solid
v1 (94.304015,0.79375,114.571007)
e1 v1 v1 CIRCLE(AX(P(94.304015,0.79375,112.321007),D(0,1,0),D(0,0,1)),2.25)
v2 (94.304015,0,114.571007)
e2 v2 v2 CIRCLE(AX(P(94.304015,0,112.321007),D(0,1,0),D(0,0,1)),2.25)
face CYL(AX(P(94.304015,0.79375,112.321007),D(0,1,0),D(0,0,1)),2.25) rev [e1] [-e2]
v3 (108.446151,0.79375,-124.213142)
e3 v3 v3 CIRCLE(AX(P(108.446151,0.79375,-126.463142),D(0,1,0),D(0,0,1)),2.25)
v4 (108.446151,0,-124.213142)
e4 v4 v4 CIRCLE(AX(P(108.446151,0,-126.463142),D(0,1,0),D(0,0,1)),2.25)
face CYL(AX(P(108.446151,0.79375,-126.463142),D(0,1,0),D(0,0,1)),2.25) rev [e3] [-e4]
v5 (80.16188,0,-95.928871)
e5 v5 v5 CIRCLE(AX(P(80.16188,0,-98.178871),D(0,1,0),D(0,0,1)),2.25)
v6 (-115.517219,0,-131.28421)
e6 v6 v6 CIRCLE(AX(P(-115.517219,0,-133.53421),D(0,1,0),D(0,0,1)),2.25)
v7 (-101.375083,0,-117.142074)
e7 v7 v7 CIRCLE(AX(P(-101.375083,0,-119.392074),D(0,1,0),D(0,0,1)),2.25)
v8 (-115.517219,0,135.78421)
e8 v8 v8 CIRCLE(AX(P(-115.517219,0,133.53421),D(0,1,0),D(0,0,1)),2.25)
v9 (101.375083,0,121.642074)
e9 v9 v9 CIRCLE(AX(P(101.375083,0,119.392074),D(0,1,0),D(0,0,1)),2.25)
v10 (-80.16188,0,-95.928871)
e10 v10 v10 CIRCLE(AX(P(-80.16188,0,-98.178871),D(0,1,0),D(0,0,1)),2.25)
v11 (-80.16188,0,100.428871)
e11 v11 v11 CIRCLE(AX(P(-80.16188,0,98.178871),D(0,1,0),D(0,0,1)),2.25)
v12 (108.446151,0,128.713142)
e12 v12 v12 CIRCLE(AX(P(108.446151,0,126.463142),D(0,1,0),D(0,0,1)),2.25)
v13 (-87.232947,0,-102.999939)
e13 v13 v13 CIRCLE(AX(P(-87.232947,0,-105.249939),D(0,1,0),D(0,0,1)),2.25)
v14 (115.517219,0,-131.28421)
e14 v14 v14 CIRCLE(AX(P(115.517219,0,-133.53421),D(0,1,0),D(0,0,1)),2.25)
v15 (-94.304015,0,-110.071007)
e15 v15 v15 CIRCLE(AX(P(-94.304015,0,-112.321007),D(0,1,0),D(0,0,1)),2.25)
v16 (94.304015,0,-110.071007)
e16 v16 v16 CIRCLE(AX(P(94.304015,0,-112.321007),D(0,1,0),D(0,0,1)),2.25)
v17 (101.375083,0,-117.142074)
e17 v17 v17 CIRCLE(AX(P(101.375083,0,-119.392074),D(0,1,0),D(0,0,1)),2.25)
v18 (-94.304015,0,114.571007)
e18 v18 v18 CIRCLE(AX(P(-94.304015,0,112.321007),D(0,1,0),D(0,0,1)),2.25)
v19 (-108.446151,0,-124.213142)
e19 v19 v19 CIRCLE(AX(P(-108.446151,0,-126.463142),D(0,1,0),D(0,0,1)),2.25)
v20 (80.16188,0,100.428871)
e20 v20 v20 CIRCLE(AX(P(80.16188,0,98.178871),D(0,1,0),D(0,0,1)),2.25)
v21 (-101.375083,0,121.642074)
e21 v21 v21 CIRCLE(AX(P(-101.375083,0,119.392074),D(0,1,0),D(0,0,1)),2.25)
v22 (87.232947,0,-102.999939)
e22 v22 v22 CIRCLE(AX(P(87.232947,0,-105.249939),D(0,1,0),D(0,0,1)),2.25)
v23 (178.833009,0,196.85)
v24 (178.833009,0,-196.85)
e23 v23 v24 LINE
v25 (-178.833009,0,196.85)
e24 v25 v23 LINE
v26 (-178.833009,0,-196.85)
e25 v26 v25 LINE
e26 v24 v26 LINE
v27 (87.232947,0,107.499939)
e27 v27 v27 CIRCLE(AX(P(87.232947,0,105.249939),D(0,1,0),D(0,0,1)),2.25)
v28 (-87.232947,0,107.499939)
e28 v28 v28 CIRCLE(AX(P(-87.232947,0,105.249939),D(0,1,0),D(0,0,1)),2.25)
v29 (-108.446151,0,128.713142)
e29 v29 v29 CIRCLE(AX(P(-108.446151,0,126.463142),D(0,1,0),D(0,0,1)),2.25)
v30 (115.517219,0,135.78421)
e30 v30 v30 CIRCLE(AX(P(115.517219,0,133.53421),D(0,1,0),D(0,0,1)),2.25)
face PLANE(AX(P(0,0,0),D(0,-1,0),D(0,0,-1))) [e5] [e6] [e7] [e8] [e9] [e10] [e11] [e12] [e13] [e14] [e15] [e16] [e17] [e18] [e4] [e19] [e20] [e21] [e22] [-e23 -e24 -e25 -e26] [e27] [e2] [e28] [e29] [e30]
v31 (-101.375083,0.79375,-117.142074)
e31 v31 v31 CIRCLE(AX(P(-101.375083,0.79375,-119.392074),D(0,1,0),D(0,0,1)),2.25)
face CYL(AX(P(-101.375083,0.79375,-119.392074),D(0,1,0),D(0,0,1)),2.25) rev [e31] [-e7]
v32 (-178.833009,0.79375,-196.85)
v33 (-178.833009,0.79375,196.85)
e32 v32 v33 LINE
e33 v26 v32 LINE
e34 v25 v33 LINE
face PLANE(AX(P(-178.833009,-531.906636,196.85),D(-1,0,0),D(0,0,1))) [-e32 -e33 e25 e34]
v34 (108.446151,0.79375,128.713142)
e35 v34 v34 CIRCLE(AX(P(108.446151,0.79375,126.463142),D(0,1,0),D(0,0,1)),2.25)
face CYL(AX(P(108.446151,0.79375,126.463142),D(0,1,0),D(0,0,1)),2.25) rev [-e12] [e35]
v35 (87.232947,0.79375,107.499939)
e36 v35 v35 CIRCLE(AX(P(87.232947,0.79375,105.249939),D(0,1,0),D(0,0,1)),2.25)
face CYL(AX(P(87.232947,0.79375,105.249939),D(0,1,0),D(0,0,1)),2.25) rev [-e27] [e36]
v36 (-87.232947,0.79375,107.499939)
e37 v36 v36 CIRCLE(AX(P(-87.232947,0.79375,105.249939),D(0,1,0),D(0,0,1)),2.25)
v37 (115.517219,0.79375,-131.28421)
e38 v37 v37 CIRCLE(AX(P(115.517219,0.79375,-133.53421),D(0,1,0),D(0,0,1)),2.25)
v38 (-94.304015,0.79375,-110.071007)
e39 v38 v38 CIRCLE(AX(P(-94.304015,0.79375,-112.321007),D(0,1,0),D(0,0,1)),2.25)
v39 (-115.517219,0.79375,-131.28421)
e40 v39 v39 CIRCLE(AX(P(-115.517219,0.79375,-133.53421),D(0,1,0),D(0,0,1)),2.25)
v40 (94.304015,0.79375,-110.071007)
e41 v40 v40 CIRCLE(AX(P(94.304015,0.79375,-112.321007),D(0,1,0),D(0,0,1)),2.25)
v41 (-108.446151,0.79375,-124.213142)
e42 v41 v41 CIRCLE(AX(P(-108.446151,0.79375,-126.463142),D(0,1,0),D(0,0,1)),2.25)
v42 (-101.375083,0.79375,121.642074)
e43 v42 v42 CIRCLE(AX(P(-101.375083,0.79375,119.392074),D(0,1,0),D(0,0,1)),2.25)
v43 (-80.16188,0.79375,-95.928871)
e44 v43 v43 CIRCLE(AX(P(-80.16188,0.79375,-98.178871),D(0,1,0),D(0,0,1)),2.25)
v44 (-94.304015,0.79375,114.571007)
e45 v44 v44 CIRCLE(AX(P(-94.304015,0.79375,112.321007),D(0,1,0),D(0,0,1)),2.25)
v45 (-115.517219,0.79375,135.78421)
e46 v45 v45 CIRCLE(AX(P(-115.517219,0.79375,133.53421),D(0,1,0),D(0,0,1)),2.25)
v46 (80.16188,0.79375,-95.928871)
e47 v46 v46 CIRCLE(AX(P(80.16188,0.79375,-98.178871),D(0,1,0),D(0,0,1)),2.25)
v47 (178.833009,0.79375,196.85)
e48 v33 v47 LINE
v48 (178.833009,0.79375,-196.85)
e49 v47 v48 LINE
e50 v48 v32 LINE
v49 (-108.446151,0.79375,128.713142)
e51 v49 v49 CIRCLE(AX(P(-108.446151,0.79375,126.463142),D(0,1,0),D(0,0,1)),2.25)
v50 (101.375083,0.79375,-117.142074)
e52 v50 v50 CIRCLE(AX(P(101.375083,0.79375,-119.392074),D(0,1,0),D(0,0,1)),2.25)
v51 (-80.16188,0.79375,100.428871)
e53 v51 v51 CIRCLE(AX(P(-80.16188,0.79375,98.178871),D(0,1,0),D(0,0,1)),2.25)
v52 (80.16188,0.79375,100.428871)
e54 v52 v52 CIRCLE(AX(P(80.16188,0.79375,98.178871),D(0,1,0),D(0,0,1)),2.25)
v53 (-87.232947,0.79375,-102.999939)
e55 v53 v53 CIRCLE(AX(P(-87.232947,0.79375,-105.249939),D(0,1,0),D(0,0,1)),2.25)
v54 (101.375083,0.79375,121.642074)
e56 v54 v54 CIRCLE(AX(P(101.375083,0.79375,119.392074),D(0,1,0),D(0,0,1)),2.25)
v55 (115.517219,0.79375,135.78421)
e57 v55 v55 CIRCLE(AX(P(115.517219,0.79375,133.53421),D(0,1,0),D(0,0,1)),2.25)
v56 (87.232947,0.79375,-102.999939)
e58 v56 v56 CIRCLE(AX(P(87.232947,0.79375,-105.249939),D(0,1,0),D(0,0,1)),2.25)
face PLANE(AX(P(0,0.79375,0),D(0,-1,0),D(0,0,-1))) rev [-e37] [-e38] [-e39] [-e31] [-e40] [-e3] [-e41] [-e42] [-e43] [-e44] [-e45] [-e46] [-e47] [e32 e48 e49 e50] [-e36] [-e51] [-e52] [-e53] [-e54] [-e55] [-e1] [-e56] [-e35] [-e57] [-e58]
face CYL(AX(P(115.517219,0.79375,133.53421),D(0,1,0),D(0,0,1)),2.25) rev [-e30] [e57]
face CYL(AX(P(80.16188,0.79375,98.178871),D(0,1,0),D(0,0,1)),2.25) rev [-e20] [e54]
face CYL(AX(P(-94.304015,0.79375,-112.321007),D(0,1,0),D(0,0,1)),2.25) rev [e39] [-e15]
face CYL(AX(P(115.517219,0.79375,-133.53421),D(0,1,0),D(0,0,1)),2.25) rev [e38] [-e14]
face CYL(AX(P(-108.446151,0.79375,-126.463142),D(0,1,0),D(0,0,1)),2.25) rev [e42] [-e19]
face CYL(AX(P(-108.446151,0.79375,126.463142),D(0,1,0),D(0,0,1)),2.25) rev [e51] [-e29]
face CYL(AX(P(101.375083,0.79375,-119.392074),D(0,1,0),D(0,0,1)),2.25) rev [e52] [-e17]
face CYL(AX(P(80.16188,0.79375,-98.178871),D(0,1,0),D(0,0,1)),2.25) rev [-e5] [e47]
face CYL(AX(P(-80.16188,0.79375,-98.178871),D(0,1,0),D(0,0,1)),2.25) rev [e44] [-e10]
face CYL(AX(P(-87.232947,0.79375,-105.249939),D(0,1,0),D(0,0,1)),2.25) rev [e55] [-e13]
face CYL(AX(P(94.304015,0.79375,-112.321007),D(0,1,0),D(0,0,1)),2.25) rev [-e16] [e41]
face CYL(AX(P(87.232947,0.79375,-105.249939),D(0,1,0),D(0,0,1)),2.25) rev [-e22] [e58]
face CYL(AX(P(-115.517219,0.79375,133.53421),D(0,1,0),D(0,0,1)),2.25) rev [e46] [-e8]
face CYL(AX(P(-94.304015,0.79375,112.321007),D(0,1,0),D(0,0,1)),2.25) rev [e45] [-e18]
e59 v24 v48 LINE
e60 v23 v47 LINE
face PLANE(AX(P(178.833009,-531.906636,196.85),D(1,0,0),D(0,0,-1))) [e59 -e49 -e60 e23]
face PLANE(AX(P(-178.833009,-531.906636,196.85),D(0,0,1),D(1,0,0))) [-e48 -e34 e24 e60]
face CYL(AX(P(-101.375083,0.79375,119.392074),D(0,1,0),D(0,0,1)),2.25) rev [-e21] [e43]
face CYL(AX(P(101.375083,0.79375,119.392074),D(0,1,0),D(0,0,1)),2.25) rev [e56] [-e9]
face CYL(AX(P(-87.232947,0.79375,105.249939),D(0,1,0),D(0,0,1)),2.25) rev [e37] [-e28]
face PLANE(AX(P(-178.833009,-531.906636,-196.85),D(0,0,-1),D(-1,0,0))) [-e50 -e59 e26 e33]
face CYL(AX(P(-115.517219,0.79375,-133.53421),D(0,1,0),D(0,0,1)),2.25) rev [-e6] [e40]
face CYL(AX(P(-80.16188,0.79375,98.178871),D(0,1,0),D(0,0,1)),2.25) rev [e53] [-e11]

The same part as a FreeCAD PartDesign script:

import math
import FreeCAD as App
import Part
import Sketcher

V = App.Vector
Q = App.Units.Quantity


def edges_at(feature, points):
    """Names of the edges that pass closest to the given points."""
    edges = feature.Shape.Edges
    near = lambda p: min(range(len(edges)), key=lambda i: edges[i].distToShape(Part.Vertex(*p))[0])
    return sorted({f"Edge{near(p) + 1}" for p in points})

doc = App.newDocument("Part")
body = doc.addObject("PartDesign::Body", "Body")

sketch1 = body.newObject("Sketcher::SketchObject", "Sketch")
sketch1.AttachmentSupport = (doc.getObject("XZ_Plane"), [""])
sketch1.MapMode = "FlatFace"
sketch1.addGeometry([
    Part.LineSegment(V(57, -93, 0), V(-57, -93, 0)),
    Part.LineSegment(V(-57, -93, 0), V(-110, -146, 0)),
    Part.LineSegment(V(-110, -146, 0), V(-128, -128, 0)),
    Part.LineSegment(V(-128, -128, 0), V(-75, -75, 0)),
    Part.LineSegment(V(-75, -75, 0), V(-75, 75, 0)),
    Part.LineSegment(V(-75, 75, 0), V(-128, 128, 0)),
    Part.LineSegment(V(-128, 128, 0), V(-110, 146, 0)),
    Part.LineSegment(V(-110, 146, 0), V(-57, 93, 0)),
    Part.LineSegment(V(-57, 93, 0), V(57, 93, 0)),
    Part.LineSegment(V(57, 93, 0), V(110, 146, 0)),
    Part.LineSegment(V(110, 146, 0), V(128, 128, 0)),
    Part.LineSegment(V(128, 128, 0), V(75, 75, 0)),
    Part.LineSegment(V(75, 75, 0), V(75, -75, 0)),
    Part.LineSegment(V(75, -75, 0), V(128, -128, 0)),
    Part.LineSegment(V(128, -128, 0), V(110, -146, 0)),
    Part.LineSegment(V(110, -146, 0), V(57, -93, 0)),
], False)
sketch1.addConstraint([
    Sketcher.Constraint("Coincident", 0, 2, 1, 1),
    Sketcher.Constraint("Coincident", 1, 2, 2, 1),
    Sketcher.Constraint("Coincident", 2, 2, 3, 1),
    Sketcher.Constraint("Coincident", 3, 2, 4, 1),
    Sketcher.Constraint("Coincident", 4, 2, 5, 1),
    Sketcher.Constraint("Coincident", 5, 2, 6, 1),
    Sketcher.Constraint("Coincident", 6, 2, 7, 1),
    Sketcher.Constraint("Coincident", 7, 2, 8, 1),
    Sketcher.Constraint("Coincident", 8, 2, 9, 1),
    Sketcher.Constraint("Coincident", 9, 2, 10, 1),
    Sketcher.Constraint("Coincident", 10, 2, 11, 1),
    Sketcher.Constraint("Coincident", 11, 2, 12, 1),
    Sketcher.Constraint("Coincident", 12, 2, 13, 1),
    Sketcher.Constraint("Coincident", 13, 2, 14, 1),
    Sketcher.Constraint("Coincident", 14, 2, 15, 1),
    Sketcher.Constraint("Coincident", 15, 2, 0, 1),
    Sketcher.Constraint("Horizontal", 0),
    Sketcher.Constraint("Vertical", 4),
    Sketcher.Constraint("Horizontal", 8),
    Sketcher.Constraint("Vertical", 12),
    Sketcher.Constraint("Symmetric", 0, 2, 8, 2, -1, 1),
    Sketcher.Constraint("Symmetric", 1, 2, 9, 2, -1, 1),
    Sketcher.Constraint("Symmetric", 2, 2, 10, 2, -1, 1),
    Sketcher.Constraint("Symmetric", 3, 2, 11, 2, -1, 1),
    Sketcher.Constraint("Symmetric", 5, 2, 13, 2, -1, 1),
    Sketcher.Constraint("Symmetric", 6, 2, 14, 2, -1, 1),
    Sketcher.Constraint("Symmetric", 6, 2, 9, 2, -2),
    Sketcher.Constraint("Symmetric", 5, 2, 10, 2, -2),
    Sketcher.Constraint("Perpendicular", 1, 2),
    Sketcher.Constraint("Perpendicular", 2, 3),
    Sketcher.Constraint("Perpendicular", 3, 5),
    Sketcher.Constraint("Perpendicular", 5, 6),
    Sketcher.Constraint("Perpendicular", 6, 7),
    Sketcher.Constraint("Perpendicular", 11, 13),
    Sketcher.Constraint("Perpendicular", 14, 15),
    Sketcher.Constraint("Equal", 1, 3),
    Sketcher.Constraint("Distance", 1, Q("75 mm")),
    Sketcher.Constraint("DistanceX", 3, 2, -1, 1, Q("75 mm")),
    Sketcher.Constraint("Distance", 2, Q("25.4 mm")),
    Sketcher.Constraint("DistanceY", 1, 2, -1, 1, Q("146.05 mm")),
])
pad1 = body.newObject("PartDesign::Pad", "Pad")
pad1.Profile = sketch1
pad1.Length = 0.79375
pad1.Reversed = True
doc.recompute()

fillet = body.newObject("PartDesign::Fillet", "Fillet")
fillet.Base = (pad1, edges_at(pad1, [
    (75, 0.397, -75.056),
    (75, 0.397, 75.056),
    (57.039, 0.397, 93.017),
    (-57.039, 0.397, 93.017),
    (-75, 0.397, 75.056),
    (-75, 0.397, -75.056),
    (-57.039, 0.397, -93.017),
    (57.039, 0.397, -93.017),
]))
fillet.Radius = 50

sketch2 = body.newObject("Sketcher::SketchObject", "Sketch001")
sketch2.AttachmentSupport = (doc.getObject("XZ_Plane"), [""])
sketch2.MapMode = "FlatFace"
sketch2.AttachmentOffset = App.Placement(V(0, 0, -0.79375), App.Rotation())
sketch2.addGeometry(Part.Circle(V(115.5, -133.5, 0), V(0, 0, 1), 2.2), False)
sketch2.addConstraint([
    Sketcher.Constraint("Diameter", 0, Q("4.5 mm")),
    Sketcher.Constraint("DistanceX", -1, 1, 0, 3, Q("115.517219 mm")),
    Sketcher.Constraint("DistanceY", 0, 3, -1, 1, Q("133.53421 mm")),
])
doc.recompute()
hole = body.newObject("PartDesign::Hole", "Hole")
hole.Profile = sketch2
hole.ThreadType = "None"
hole.Diameter = 4.5
hole.DepthType = "ThroughAll"
hole.Reversed = True
doc.recompute()

datumline = body.newObject("PartDesign::Line", "DatumLine")
datumline.Placement = App.Placement(V(0, 0, 0), App.Rotation(V(0, 0, 1), V(-0.707106781, 0, 0.707106781)))
linearpattern = body.newObject("PartDesign::LinearPattern", "LinearPattern")
linearpattern.Originals = [hole]
linearpattern.Direction = (datumline, [""])
linearpattern.Mode = "offset"
linearpattern.Offset = 10
linearpattern.Occurrences = 6
body.Tip = linearpattern
doc.recompute()

mirrored = body.newObject("PartDesign::Mirrored", "Mirrored")
mirrored.Originals = [hole]
mirrored.MirrorPlane = (doc.getObject("XY_Plane"), [""])
body.Tip = mirrored

sketch3 = body.newObject("Sketcher::SketchObject", "Sketch002")
sketch3.AttachmentSupport = (doc.getObject("XZ_Plane"), [""])
sketch3.MapMode = "FlatFace"
sketch3.AttachmentOffset = App.Placement(V(0, 0, -0.79375), App.Rotation())
sketch3.addGeometry(Part.Circle(V(108.4, 126.5, 0), V(0, 0, 1), 2.2), False)
sketch3.addConstraint([
    Sketcher.Constraint("Diameter", 0, Q("4.5 mm")),
    Sketcher.Constraint("DistanceX", -1, 1, 0, 3, Q("108.446151 mm")),
    Sketcher.Constraint("DistanceY", -1, 1, 0, 3, Q("126.463142 mm")),
])
doc.recompute()
hole2 = body.newObject("PartDesign::Hole", "Hole001")
hole2.Profile = sketch3
hole2.ThreadType = "None"
hole2.Diameter = 4.5
hole2.DepthType = "ThroughAll"
hole2.Reversed = True

sketch4 = body.newObject("Sketcher::SketchObject", "Sketch003")
sketch4.AttachmentSupport = (doc.getObject("XZ_Plane"), [""])
sketch4.MapMode = "FlatFace"
sketch4.AttachmentOffset = App.Placement(V(0, 0, -0.79375), App.Rotation())
sketch4.addGeometry(Part.Circle(V(101.4, 119.4, 0), V(0, 0, 1), 2.2), False)
sketch4.addConstraint([
    Sketcher.Constraint("Diameter", 0, Q("4.5 mm")),
    Sketcher.Constraint("DistanceX", -1, 1, 0, 3, Q("101.375083 mm")),
    Sketcher.Constraint("DistanceY", -1, 1, 0, 3, Q("119.392074 mm")),
])
doc.recompute()
hole3 = body.newObject("PartDesign::Hole", "Hole002")
hole3.Profile = sketch4
hole3.ThreadType = "None"
hole3.Diameter = 4.5
hole3.DepthType = "ThroughAll"
hole3.Reversed = True

sketch5 = body.newObject("Sketcher::SketchObject", "Sketch004")
sketch5.AttachmentSupport = (doc.getObject("XZ_Plane"), [""])
sketch5.MapMode = "FlatFace"
sketch5.AttachmentOffset = App.Placement(V(0, 0, -0.79375), App.Rotation())
sketch5.addGeometry(Part.Circle(V(94.3, 112.3, 0), V(0, 0, 1), 2.2), False)
sketch5.addConstraint([
    Sketcher.Constraint("Diameter", 0, Q("4.5 mm")),
    Sketcher.Constraint("DistanceX", -1, 1, 0, 3, Q("94.304015 mm")),
    Sketcher.Constraint("DistanceY", -1, 1, 0, 3, Q("112.321007 mm")),
])
doc.recompute()
hole4 = body.newObject("PartDesign::Hole", "Hole003")
hole4.Profile = sketch5
hole4.ThreadType = "None"
hole4.Diameter = 4.5
hole4.DepthType = "ThroughAll"
hole4.Reversed = True

sketch6 = body.newObject("Sketcher::SketchObject", "Sketch005")
sketch6.AttachmentSupport = (doc.getObject("XZ_Plane"), [""])
sketch6.MapMode = "FlatFace"
sketch6.AttachmentOffset = App.Placement(V(0, 0, -0.79375), App.Rotation())
sketch6.addGeometry(Part.Circle(V(87.2, 105.2, 0), V(0, 0, 1), 2.2), False)
sketch6.addConstraint([
    Sketcher.Constraint("Diameter", 0, Q("4.5 mm")),
    Sketcher.Constraint("DistanceY", -1, 1, 0, 3, Q("105.249939 mm")),
    Sketcher.Constraint("DistanceX", -1, 1, 0, 3, Q("87.232947 mm")),
])
doc.recompute()
hole5 = body.newObject("PartDesign::Hole", "Hole004")
hole5.Profile = sketch6
hole5.ThreadType = "None"
hole5.Diameter = 4.5
hole5.DepthType = "ThroughAll"
hole5.Reversed = True

sketch7 = body.newObject("Sketcher::SketchObject", "Sketch006")
sketch7.AttachmentSupport = (doc.getObject("XZ_Plane"), [""])
sketch7.MapMode = "FlatFace"
sketch7.AttachmentOffset = App.Placement(V(0, 0, -0.79375), App.Rotation())
sketch7.addGeometry(Part.Circle(V(80.2, 98.2, 0), V(0, 0, 1), 2.2), False)
sketch7.addConstraint([
    Sketcher.Constraint("Diameter", 0, Q("4.5 mm")),
    Sketcher.Constraint("DistanceX", -1, 1, 0, 3, Q("80.16188 mm")),
    Sketcher.Constraint("DistanceY", -1, 1, 0, 3, Q("98.178871 mm")),
])
doc.recompute()
hole6 = body.newObject("PartDesign::Hole", "Hole005")
hole6.Profile = sketch7
hole6.ThreadType = "None"
hole6.Diameter = 4.5
hole6.DepthType = "ThroughAll"
hole6.Reversed = True
doc.recompute()

mirrored2 = body.newObject("PartDesign::Mirrored", "Mirrored001")
mirrored2.Originals = [hole]
mirrored2.MirrorPlane = (doc.getObject("YZ_Plane"), [""])
body.Tip = mirrored2

sketch8 = body.newObject("Sketcher::SketchObject", "Sketch007")
sketch8.AttachmentSupport = (doc.getObject("XZ_Plane"), [""])
sketch8.MapMode = "FlatFace"
sketch8.AttachmentOffset = App.Placement(V(0, 0, -0.79375), App.Rotation())
sketch8.addGeometry(Part.Circle(V(-108.4, -126.5, 0), V(0, 0, 1), 2.2), False)
sketch8.addConstraint([
    Sketcher.Constraint("Diameter", 0, Q("4.5 mm")),
    Sketcher.Constraint("DistanceX", 0, 3, -1, 1, Q("108.446151 mm")),
    Sketcher.Constraint("DistanceY", 0, 3, -1, 1, Q("126.463142 mm")),
])
doc.recompute()
hole7 = body.newObject("PartDesign::Hole", "Hole006")
hole7.Profile = sketch8
hole7.ThreadType = "None"
hole7.Diameter = 4.5
hole7.DepthType = "ThroughAll"
hole7.Reversed = True

sketch9 = body.newObject("Sketcher::SketchObject", "Sketch008")
sketch9.AttachmentSupport = (doc.getObject("XZ_Plane"), [""])
sketch9.MapMode = "FlatFace"
sketch9.AttachmentOffset = App.Placement(V(0, 0, -0.79375), App.Rotation())
sketch9.addGeometry(Part.Circle(V(-101.4, -119.4, 0), V(0, 0, 1), 2.2), False)
sketch9.addConstraint([
    Sketcher.Constraint("Diameter", 0, Q("4.5 mm")),
    Sketcher.Constraint("DistanceX", 0, 3, -1, 1, Q("101.375083 mm")),
    Sketcher.Constraint("DistanceY", 0, 3, -1, 1, Q("119.392074 mm")),
])
doc.recompute()
hole8 = body.newObject("PartDesign::Hole", "Hole007")
hole8.Profile = sketch9
hole8.ThreadType = "None"
hole8.Diameter = 4.5
hole8.DepthType = "ThroughAll"
hole8.Reversed = True

sketch10 = body.newObject("Sketcher::SketchObject", "Sketch009")
sketch10.AttachmentSupport = (doc.getObject("XZ_Plane"), [""])
sketch10.MapMode = "FlatFace"
sketch10.AttachmentOffset = App.Placement(V(0, 0, -0.79375), App.Rotation())
sketch10.addGeometry(Part.Circle(V(-94.3, -112.3, 0), V(0, 0, 1), 2.2), False)
sketch10.addConstraint([
    Sketcher.Constraint("Diameter", 0, Q("4.5 mm")),
    Sketcher.Constraint("DistanceX", 0, 3, -1, 1, Q("94.304015 mm")),
    Sketcher.Constraint("DistanceY", 0, 3, -1, 1, Q("112.321007 mm")),
])
doc.recompute()
hole9 = body.newObject("PartDesign::Hole", "Hole008")
hole9.Profile = sketch10
hole9.ThreadType = "None"
hole9.Diameter = 4.5
hole9.DepthType = "ThroughAll"
hole9.Reversed = True

sketch11 = body.newObject("Sketcher::SketchObject", "Sketch010")
sketch11.AttachmentSupport = (doc.getObject("XZ_Plane"), [""])
sketch11.MapMode = "FlatFace"
sketch11.AttachmentOffset = App.Placement(V(0, 0, -0.79375), App.Rotation())
sketch11.addGeometry(Part.Circle(V(-87.2, -105.2, 0), V(0, 0, 1), 2.2), False)
sketch11.addConstraint([
    Sketcher.Constraint("Diameter", 0, Q("4.5 mm")),
    Sketcher.Constraint("DistanceY", 0, 3, -1, 1, Q("105.249939 mm")),
    Sketcher.Constraint("DistanceX", 0, 3, -1, 1, Q("87.232947 mm")),
])
doc.recompute()
hole10 = body.newObject("PartDesign::Hole", "Hole009")
hole10.Profile = sketch11
hole10.ThreadType = "None"
hole10.Diameter = 4.5
hole10.DepthType = "ThroughAll"
hole10.Reversed = True

sketch12 = body.newObject("Sketcher::SketchObject", "Sketch011")
sketch12.AttachmentSupport = (doc.getObject("XZ_Plane"), [""])
sketch12.MapMode = "FlatFace"
sketch12.AttachmentOffset = App.Placement(V(0, 0, -0.79375), App.Rotation())
sketch12.addGeometry(Part.Circle(V(-80.2, -98.2, 0), V(0, 0, 1), 2.2), False)
sketch12.addConstraint([
    Sketcher.Constraint("Diameter", 0, Q("4.5 mm")),
    Sketcher.Constraint("DistanceX", 0, 3, -1, 1, Q("80.16188 mm")),
    Sketcher.Constraint("DistanceY", 0, 3, -1, 1, Q("98.178871 mm")),
])
doc.recompute()
hole11 = body.newObject("PartDesign::Hole", "Hole010")
hole11.Profile = sketch12
hole11.ThreadType = "None"
hole11.Diameter = 4.5
hole11.DepthType = "ThroughAll"
hole11.Reversed = True

sketch13 = body.newObject("Sketcher::SketchObject", "Sketch012")
sketch13.AttachmentSupport = (doc.getObject("XZ_Plane"), [""])
sketch13.MapMode = "FlatFace"
sketch13.AttachmentOffset = App.Placement(V(0, 0, -0.79375), App.Rotation())
sketch13.addGeometry(Part.Circle(V(-115.5, 133.5, 0), V(0, 0, 1), 2.2), False)
sketch13.addConstraint([
    Sketcher.Constraint("Diameter", 0, Q("4.5 mm")),
    Sketcher.Constraint("DistanceX", 0, 3, -1, 1, Q("115.517219 mm")),
    Sketcher.Constraint("DistanceY", -1, 1, 0, 3, Q("133.53421 mm")),
])
doc.recompute()
hole12 = body.newObject("PartDesign::Hole", "Hole011")
hole12.Profile = sketch13
hole12.ThreadType = "None"
hole12.Diameter = 4.5
hole12.DepthType = "ThroughAll"
hole12.Reversed = True

sketch14 = body.newObject("Sketcher::SketchObject", "Sketch013")
sketch14.AttachmentSupport = (doc.getObject("XZ_Plane"), [""])
sketch14.MapMode = "FlatFace"
sketch14.AttachmentOffset = App.Placement(V(0, 0, -0.79375), App.Rotation())
sketch14.addGeometry(Part.Circle(V(-108.4, 126.5, 0), V(0, 0, 1), 2.2), False)
sketch14.addConstraint([
    Sketcher.Constraint("Diameter", 0, Q("4.5 mm")),
    Sketcher.Constraint("DistanceX", 0, 3, -1, 1, Q("108.446151 mm")),
    Sketcher.Constraint("DistanceY", -1, 1, 0, 3, Q("126.463142 mm")),
])
doc.recompute()
hole13 = body.newObject("PartDesign::Hole", "Hole012")
hole13.Profile = sketch14
hole13.ThreadType = "None"
hole13.Diameter = 4.5
hole13.DepthType = "ThroughAll"
hole13.Reversed = True

sketch15 = body.newObject("Sketcher::SketchObject", "Sketch014")
sketch15.AttachmentSupport = (doc.getObject("XZ_Plane"), [""])
sketch15.MapMode = "FlatFace"
sketch15.AttachmentOffset = App.Placement(V(0, 0, -0.79375), App.Rotation())
sketch15.addGeometry(Part.Circle(V(-101.4, 119.4, 0), V(0, 0, 1), 2.2), False)
sketch15.addConstraint([
    Sketcher.Constraint("Diameter", 0, Q("4.5 mm")),
    Sketcher.Constraint("DistanceX", 0, 3, -1, 1, Q("101.375083 mm")),
    Sketcher.Constraint("DistanceY", -1, 1, 0, 3, Q("119.392074 mm")),
])
doc.recompute()
hole14 = body.newObject("PartDesign::Hole", "Hole013")
hole14.Profile = sketch15
hole14.ThreadType = "None"
hole14.Diameter = 4.5
hole14.DepthType = "ThroughAll"
hole14.Reversed = True

sketch16 = body.newObject("Sketcher::SketchObject", "Sketch015")
sketch16.AttachmentSupport = (doc.getObject("XZ_Plane"), [""])
sketch16.MapMode = "FlatFace"
sketch16.AttachmentOffset = App.Placement(V(0, 0, -0.79375), App.Rotation())
sketch16.addGeometry(Part.Circle(V(-94.3, 112.3, 0), V(0, 0, 1), 2.2), False)
sketch16.addConstraint([
    Sketcher.Constraint("Diameter", 0, Q("4.5 mm")),
    Sketcher.Constraint("DistanceX", 0, 3, -1, 1, Q("94.304015 mm")),
    Sketcher.Constraint("DistanceY", -1, 1, 0, 3, Q("112.321007 mm")),
])
doc.recompute()
hole15 = body.newObject("PartDesign::Hole", "Hole014")
hole15.Profile = sketch16
hole15.ThreadType = "None"
hole15.Diameter = 4.5
hole15.DepthType = "ThroughAll"
hole15.Reversed = True

sketch17 = body.newObject("Sketcher::SketchObject", "Sketch016")
sketch17.AttachmentSupport = (doc.getObject("XZ_Plane"), [""])
sketch17.MapMode = "FlatFace"
sketch17.AttachmentOffset = App.Placement(V(0, 0, -0.79375), App.Rotation())
sketch17.addGeometry(Part.Circle(V(-87.2, 105.2, 0), V(0, 0, 1), 2.2), False)
sketch17.addConstraint([
    Sketcher.Constraint("Diameter", 0, Q("4.5 mm")),
    Sketcher.Constraint("DistanceY", -1, 1, 0, 3, Q("105.249939 mm")),
    Sketcher.Constraint("DistanceX", 0, 3, -1, 1, Q("87.232947 mm")),
])
doc.recompute()
hole16 = body.newObject("PartDesign::Hole", "Hole015")
hole16.Profile = sketch17
hole16.ThreadType = "None"
hole16.Diameter = 4.5
hole16.DepthType = "ThroughAll"
hole16.Reversed = True

sketch18 = body.newObject("Sketcher::SketchObject", "Sketch017")
sketch18.AttachmentSupport = (doc.getObject("XZ_Plane"), [""])
sketch18.MapMode = "FlatFace"
sketch18.AttachmentOffset = App.Placement(V(0, 0, -0.79375), App.Rotation())
sketch18.addGeometry(Part.Circle(V(-80.2, 98.2, 0), V(0, 0, 1), 2.2), False)
sketch18.addConstraint([
    Sketcher.Constraint("Diameter", 0, Q("4.5 mm")),
    Sketcher.Constraint("DistanceX", 0, 3, -1, 1, Q("80.16188 mm")),
    Sketcher.Constraint("DistanceY", -1, 1, 0, 3, Q("98.178871 mm")),
])
doc.recompute()
hole17 = body.newObject("PartDesign::Hole", "Hole016")
hole17.Profile = sketch18
hole17.ThreadType = "None"
hole17.Diameter = 4.5
hole17.DepthType = "ThroughAll"
hole17.Reversed = True

sketch19 = body.newObject("Sketcher::SketchObject", "Sketch018")
sketch19.AttachmentSupport = (doc.getObject("XZ_Plane"), [""])
sketch19.MapMode = "FlatFace"
sketch19.AttachmentOffset = App.Placement(V(0, 0, -0.79375), App.Rotation())
sketch19.addGeometry([
    Part.LineSegment(V(-128, -128, 0), V(-128, 128, 0)),
    Part.LineSegment(V(-128, 128, 0), V(-90, 90, 0)),
    Part.ArcOfCircle(Part.Circle(V(-125, 54, 0), V(0, 0, 1), 50), math.radians(0), math.radians(45)),
    Part.LineSegment(V(-75, 54, 0), V(-75, -54, 0)),
    Part.ArcOfCircle(Part.Circle(V(-125, -54, 0), V(0, 0, 1), 50), math.radians(-45), math.radians(0)),
    Part.LineSegment(V(-90, -90, 0), V(-128, -128, 0)),
    Part.LineSegment(V(-110, 146, 0), V(110, 146, 0)),
    Part.LineSegment(V(110, 146, 0), V(72, 108, 0)),
    Part.ArcOfCircle(Part.Circle(V(36, 143, 0), V(0, 0, 1), 50), math.radians(-90), math.radians(-45)),
    Part.LineSegment(V(36, 93, 0), V(-36, 93, 0)),
    Part.ArcOfCircle(Part.Circle(V(-36, 143, 0), V(0, 0, 1), 50), math.radians(-135), math.radians(-90)),
    Part.LineSegment(V(-72, 108, 0), V(-110, 146, 0)),
    Part.LineSegment(V(128, 128, 0), V(128, -128, 0)),
    Part.LineSegment(V(128, -128, 0), V(90, -90, 0)),
    Part.ArcOfCircle(Part.Circle(V(125, -54, 0), V(0, 0, 1), 50), math.radians(180), math.radians(225)),
    Part.LineSegment(V(75, -54, 0), V(75, 54, 0)),
    Part.ArcOfCircle(Part.Circle(V(125, 54, 0), V(0, 0, 1), 50), math.radians(135), math.radians(180)),
    Part.LineSegment(V(90, 90, 0), V(128, 128, 0)),
], False)
sketch19.addConstraint([
    Sketcher.Constraint("Coincident", 0, 2, 1, 1),
    Sketcher.Constraint("Tangent", 1, 2, 2, 2),
    Sketcher.Constraint("Tangent", 2, 1, 3, 1),
    Sketcher.Constraint("Tangent", 3, 2, 4, 2),
    Sketcher.Constraint("Tangent", 4, 1, 5, 1),
    Sketcher.Constraint("Coincident", 5, 2, 0, 1),
    Sketcher.Constraint("Coincident", 6, 2, 7, 1),
    Sketcher.Constraint("Tangent", 7, 2, 8, 2),
    Sketcher.Constraint("Tangent", 8, 1, 9, 1),
    Sketcher.Constraint("Tangent", 9, 2, 10, 2),
    Sketcher.Constraint("Tangent", 10, 1, 11, 1),
    Sketcher.Constraint("Coincident", 11, 2, 6, 1),
    Sketcher.Constraint("Coincident", 12, 2, 13, 1),
    Sketcher.Constraint("Tangent", 13, 2, 14, 2),
    Sketcher.Constraint("Tangent", 14, 1, 15, 1),
    Sketcher.Constraint("Tangent", 15, 2, 16, 2),
    Sketcher.Constraint("Tangent", 16, 1, 17, 1),
    Sketcher.Constraint("Coincident", 17, 2, 12, 1),
    Sketcher.Constraint("Vertical", 0),
    Sketcher.Constraint("Vertical", 3),
    Sketcher.Constraint("Horizontal", 6),
    Sketcher.Constraint("Horizontal", 9),
    Sketcher.Constraint("Vertical", 12),
    Sketcher.Constraint("Vertical", 15),
    Sketcher.Constraint("Equal", 2, 4),
    Sketcher.Constraint("Equal", 4, 8),
    Sketcher.Constraint("Equal", 8, 10),
    Sketcher.Constraint("Equal", 10, 14),
    Sketcher.Constraint("Equal", 14, 16),
    Sketcher.Constraint("Symmetric", 2, 3, 14, 3, -1, 1),
    Sketcher.Constraint("Symmetric", 0, 2, 12, 2, -1, 1),
    Sketcher.Constraint("Symmetric", 4, 1, 16, 1, -1, 1),
    Sketcher.Constraint("Symmetric", 7, 2, 10, 1, -2),
    Sketcher.Constraint("Symmetric", 4, 1, 13, 2, -2),
    Sketcher.Constraint("Perpendicular", 1, 5),
    Sketcher.Constraint("Parallel", 5, 7),
    Sketcher.Constraint("Equal", 5, 7),
    Sketcher.Constraint("Radius", 2, Q("50 mm")),
    Sketcher.Constraint("DistanceX", 2, 3, -1, 1, Q("125 mm")),
    Sketcher.Constraint("DistanceY", -1, 1, 6, 2, Q("146.05 mm")),
    Sketcher.Constraint("DistanceX", 9, 2, 9, 1, Q("72.657619 mm")),
    Sketcher.Constraint("DistanceY", -1, 1, 2, 3, Q("54.345801 mm")),
    Sketcher.Constraint("DistanceX", 0, 2, 10, 3, Q("91.704199 mm")),
])
pad2 = body.newObject("PartDesign::Pad", "Pad001")
pad2.Profile = sketch19
pad2.Length = 0.79375

sketch20 = body.newObject("Sketcher::SketchObject", "Sketch019")
sketch20.AttachmentSupport = (doc.getObject("XZ_Plane"), [""])
sketch20.MapMode = "FlatFace"
sketch20.AttachmentOffset = App.Placement(V(0, 0, -0.79375), App.Rotation())
sketch20.addGeometry([
    Part.LineSegment(V(72, -108, 0), V(110, -146, 0)),
    Part.LineSegment(V(110, -146, 0), V(-110, -146, 0)),
    Part.LineSegment(V(-110, -146, 0), V(-72, -108, 0)),
    Part.ArcOfCircle(Part.Circle(V(-36, -143, 0), V(0, 0, 1), 50), math.radians(90), math.radians(135)),
    Part.LineSegment(V(-36, -93, 0), V(36, -93, 0)),
    Part.ArcOfCircle(Part.Circle(V(36, -143, 0), V(0, 0, 1), 50), math.radians(45), math.radians(90)),
], False)
sketch20.addConstraint([
    Sketcher.Constraint("Coincident", 0, 2, 1, 1),
    Sketcher.Constraint("Coincident", 1, 2, 2, 1),
    Sketcher.Constraint("Tangent", 2, 2, 3, 2),
    Sketcher.Constraint("Tangent", 3, 1, 4, 1),
    Sketcher.Constraint("Tangent", 4, 2, 5, 2),
    Sketcher.Constraint("Tangent", 5, 1, 0, 1),
    Sketcher.Constraint("Horizontal", 1),
    Sketcher.Constraint("Horizontal", 4),
    Sketcher.Constraint("Equal", 3, 5),
    Sketcher.Constraint("Symmetric", 2, 2, 5, 1, -2),
    Sketcher.Constraint("Perpendicular", 0, 2),
    Sketcher.Constraint("Radius", 3, Q("50 mm")),
    Sketcher.Constraint("DistanceY", 0, 2, -1, 1, Q("146.05 mm")),
    Sketcher.Constraint("DistanceX", 4, 1, 4, 2, Q("72.657619 mm")),
    Sketcher.Constraint("Distance", 0, Q("54.289322 mm")),
])
pad3 = body.newObject("PartDesign::Pad", "Pad002")
pad3.Profile = sketch20
pad3.Length = 0.79375

sketch21 = body.newObject("Sketcher::SketchObject", "Sketch020")
sketch21.AttachmentSupport = (doc.getObject("XZ_Plane"), [""])
sketch21.MapMode = "FlatFace"
sketch21.AttachmentOffset = App.Placement(V(0, 0, -0.79375), App.Rotation())
sketch21.addGeometry([
    Part.LineSegment(V(-179, -197, 0), V(-179, 197, 0)),
    Part.LineSegment(V(-179, 197, 0), V(179, 197, 0)),
    Part.LineSegment(V(179, 197, 0), V(179, -197, 0)),
    Part.LineSegment(V(179, -197, 0), V(-179, -197, 0)),
    Part.LineSegment(V(110, -146, 0), V(128, -128, 0)),
    Part.LineSegment(V(128, -128, 0), V(128, 128, 0)),
    Part.LineSegment(V(128, 128, 0), V(110, 146, 0)),
    Part.LineSegment(V(110, 146, 0), V(-110, 146, 0)),
    Part.LineSegment(V(-110, 146, 0), V(-128, 128, 0)),
    Part.LineSegment(V(-128, 128, 0), V(-128, -128, 0)),
    Part.LineSegment(V(-128, -128, 0), V(-110, -146, 0)),
    Part.LineSegment(V(-110, -146, 0), V(110, -146, 0)),
], False)
sketch21.addConstraint([
    Sketcher.Constraint("Coincident", 0, 2, 1, 1),
    Sketcher.Constraint("Coincident", 1, 2, 2, 1),
    Sketcher.Constraint("Coincident", 2, 2, 3, 1),
    Sketcher.Constraint("Coincident", 3, 2, 0, 1),
    Sketcher.Constraint("Coincident", 4, 2, 5, 1),
    Sketcher.Constraint("Coincident", 5, 2, 6, 1),
    Sketcher.Constraint("Coincident", 6, 2, 7, 1),
    Sketcher.Constraint("Coincident", 7, 2, 8, 1),
    Sketcher.Constraint("Coincident", 8, 2, 9, 1),
    Sketcher.Constraint("Coincident", 9, 2, 10, 1),
    Sketcher.Constraint("Coincident", 10, 2, 11, 1),
    Sketcher.Constraint("Coincident", 11, 2, 4, 1),
    Sketcher.Constraint("Vertical", 0),
    Sketcher.Constraint("Horizontal", 1),
    Sketcher.Constraint("Vertical", 2),
    Sketcher.Constraint("Horizontal", 3),
    Sketcher.Constraint("Vertical", 5),
    Sketcher.Constraint("Horizontal", 7),
    Sketcher.Constraint("Vertical", 9),
    Sketcher.Constraint("Horizontal", 11),
    Sketcher.Constraint("Symmetric", 0, 2, 2, 2, -1, 1),
    Sketcher.Constraint("Symmetric", 4, 2, 8, 2, -1, 1),
    Sketcher.Constraint("Symmetric", 6, 2, 10, 2, -1, 1),
    Sketcher.Constraint("Perpendicular", 4, 6),
    Sketcher.Constraint("Perpendicular", 6, 8),
    Sketcher.Constraint("Perpendicular", 8, 10),
    Sketcher.Constraint("Horizontal", 5, 2, 8, 2),
    Sketcher.Constraint("Vertical", 7, 2, 10, 2),
    Sketcher.Constraint("DistanceY", 0, 1, 0, 2, Q("393.7 mm")),
    Sketcher.Constraint("Distance", 4, Q("25.4 mm")),
    Sketcher.Constraint("DistanceX", 4, 2, 2, 2, Q("50.8 mm")),
    Sketcher.Constraint("DistanceY", 6, 2, 1, 2, Q("50.8 mm")),
    Sketcher.Constraint("DistanceX", 1, 1, 1, 2, Q("357.666017 mm")),
])
pad4 = body.newObject("PartDesign::Pad", "Pad003")
pad4.Profile = sketch21
pad4.Length = 0.79375

doc.recompute()
